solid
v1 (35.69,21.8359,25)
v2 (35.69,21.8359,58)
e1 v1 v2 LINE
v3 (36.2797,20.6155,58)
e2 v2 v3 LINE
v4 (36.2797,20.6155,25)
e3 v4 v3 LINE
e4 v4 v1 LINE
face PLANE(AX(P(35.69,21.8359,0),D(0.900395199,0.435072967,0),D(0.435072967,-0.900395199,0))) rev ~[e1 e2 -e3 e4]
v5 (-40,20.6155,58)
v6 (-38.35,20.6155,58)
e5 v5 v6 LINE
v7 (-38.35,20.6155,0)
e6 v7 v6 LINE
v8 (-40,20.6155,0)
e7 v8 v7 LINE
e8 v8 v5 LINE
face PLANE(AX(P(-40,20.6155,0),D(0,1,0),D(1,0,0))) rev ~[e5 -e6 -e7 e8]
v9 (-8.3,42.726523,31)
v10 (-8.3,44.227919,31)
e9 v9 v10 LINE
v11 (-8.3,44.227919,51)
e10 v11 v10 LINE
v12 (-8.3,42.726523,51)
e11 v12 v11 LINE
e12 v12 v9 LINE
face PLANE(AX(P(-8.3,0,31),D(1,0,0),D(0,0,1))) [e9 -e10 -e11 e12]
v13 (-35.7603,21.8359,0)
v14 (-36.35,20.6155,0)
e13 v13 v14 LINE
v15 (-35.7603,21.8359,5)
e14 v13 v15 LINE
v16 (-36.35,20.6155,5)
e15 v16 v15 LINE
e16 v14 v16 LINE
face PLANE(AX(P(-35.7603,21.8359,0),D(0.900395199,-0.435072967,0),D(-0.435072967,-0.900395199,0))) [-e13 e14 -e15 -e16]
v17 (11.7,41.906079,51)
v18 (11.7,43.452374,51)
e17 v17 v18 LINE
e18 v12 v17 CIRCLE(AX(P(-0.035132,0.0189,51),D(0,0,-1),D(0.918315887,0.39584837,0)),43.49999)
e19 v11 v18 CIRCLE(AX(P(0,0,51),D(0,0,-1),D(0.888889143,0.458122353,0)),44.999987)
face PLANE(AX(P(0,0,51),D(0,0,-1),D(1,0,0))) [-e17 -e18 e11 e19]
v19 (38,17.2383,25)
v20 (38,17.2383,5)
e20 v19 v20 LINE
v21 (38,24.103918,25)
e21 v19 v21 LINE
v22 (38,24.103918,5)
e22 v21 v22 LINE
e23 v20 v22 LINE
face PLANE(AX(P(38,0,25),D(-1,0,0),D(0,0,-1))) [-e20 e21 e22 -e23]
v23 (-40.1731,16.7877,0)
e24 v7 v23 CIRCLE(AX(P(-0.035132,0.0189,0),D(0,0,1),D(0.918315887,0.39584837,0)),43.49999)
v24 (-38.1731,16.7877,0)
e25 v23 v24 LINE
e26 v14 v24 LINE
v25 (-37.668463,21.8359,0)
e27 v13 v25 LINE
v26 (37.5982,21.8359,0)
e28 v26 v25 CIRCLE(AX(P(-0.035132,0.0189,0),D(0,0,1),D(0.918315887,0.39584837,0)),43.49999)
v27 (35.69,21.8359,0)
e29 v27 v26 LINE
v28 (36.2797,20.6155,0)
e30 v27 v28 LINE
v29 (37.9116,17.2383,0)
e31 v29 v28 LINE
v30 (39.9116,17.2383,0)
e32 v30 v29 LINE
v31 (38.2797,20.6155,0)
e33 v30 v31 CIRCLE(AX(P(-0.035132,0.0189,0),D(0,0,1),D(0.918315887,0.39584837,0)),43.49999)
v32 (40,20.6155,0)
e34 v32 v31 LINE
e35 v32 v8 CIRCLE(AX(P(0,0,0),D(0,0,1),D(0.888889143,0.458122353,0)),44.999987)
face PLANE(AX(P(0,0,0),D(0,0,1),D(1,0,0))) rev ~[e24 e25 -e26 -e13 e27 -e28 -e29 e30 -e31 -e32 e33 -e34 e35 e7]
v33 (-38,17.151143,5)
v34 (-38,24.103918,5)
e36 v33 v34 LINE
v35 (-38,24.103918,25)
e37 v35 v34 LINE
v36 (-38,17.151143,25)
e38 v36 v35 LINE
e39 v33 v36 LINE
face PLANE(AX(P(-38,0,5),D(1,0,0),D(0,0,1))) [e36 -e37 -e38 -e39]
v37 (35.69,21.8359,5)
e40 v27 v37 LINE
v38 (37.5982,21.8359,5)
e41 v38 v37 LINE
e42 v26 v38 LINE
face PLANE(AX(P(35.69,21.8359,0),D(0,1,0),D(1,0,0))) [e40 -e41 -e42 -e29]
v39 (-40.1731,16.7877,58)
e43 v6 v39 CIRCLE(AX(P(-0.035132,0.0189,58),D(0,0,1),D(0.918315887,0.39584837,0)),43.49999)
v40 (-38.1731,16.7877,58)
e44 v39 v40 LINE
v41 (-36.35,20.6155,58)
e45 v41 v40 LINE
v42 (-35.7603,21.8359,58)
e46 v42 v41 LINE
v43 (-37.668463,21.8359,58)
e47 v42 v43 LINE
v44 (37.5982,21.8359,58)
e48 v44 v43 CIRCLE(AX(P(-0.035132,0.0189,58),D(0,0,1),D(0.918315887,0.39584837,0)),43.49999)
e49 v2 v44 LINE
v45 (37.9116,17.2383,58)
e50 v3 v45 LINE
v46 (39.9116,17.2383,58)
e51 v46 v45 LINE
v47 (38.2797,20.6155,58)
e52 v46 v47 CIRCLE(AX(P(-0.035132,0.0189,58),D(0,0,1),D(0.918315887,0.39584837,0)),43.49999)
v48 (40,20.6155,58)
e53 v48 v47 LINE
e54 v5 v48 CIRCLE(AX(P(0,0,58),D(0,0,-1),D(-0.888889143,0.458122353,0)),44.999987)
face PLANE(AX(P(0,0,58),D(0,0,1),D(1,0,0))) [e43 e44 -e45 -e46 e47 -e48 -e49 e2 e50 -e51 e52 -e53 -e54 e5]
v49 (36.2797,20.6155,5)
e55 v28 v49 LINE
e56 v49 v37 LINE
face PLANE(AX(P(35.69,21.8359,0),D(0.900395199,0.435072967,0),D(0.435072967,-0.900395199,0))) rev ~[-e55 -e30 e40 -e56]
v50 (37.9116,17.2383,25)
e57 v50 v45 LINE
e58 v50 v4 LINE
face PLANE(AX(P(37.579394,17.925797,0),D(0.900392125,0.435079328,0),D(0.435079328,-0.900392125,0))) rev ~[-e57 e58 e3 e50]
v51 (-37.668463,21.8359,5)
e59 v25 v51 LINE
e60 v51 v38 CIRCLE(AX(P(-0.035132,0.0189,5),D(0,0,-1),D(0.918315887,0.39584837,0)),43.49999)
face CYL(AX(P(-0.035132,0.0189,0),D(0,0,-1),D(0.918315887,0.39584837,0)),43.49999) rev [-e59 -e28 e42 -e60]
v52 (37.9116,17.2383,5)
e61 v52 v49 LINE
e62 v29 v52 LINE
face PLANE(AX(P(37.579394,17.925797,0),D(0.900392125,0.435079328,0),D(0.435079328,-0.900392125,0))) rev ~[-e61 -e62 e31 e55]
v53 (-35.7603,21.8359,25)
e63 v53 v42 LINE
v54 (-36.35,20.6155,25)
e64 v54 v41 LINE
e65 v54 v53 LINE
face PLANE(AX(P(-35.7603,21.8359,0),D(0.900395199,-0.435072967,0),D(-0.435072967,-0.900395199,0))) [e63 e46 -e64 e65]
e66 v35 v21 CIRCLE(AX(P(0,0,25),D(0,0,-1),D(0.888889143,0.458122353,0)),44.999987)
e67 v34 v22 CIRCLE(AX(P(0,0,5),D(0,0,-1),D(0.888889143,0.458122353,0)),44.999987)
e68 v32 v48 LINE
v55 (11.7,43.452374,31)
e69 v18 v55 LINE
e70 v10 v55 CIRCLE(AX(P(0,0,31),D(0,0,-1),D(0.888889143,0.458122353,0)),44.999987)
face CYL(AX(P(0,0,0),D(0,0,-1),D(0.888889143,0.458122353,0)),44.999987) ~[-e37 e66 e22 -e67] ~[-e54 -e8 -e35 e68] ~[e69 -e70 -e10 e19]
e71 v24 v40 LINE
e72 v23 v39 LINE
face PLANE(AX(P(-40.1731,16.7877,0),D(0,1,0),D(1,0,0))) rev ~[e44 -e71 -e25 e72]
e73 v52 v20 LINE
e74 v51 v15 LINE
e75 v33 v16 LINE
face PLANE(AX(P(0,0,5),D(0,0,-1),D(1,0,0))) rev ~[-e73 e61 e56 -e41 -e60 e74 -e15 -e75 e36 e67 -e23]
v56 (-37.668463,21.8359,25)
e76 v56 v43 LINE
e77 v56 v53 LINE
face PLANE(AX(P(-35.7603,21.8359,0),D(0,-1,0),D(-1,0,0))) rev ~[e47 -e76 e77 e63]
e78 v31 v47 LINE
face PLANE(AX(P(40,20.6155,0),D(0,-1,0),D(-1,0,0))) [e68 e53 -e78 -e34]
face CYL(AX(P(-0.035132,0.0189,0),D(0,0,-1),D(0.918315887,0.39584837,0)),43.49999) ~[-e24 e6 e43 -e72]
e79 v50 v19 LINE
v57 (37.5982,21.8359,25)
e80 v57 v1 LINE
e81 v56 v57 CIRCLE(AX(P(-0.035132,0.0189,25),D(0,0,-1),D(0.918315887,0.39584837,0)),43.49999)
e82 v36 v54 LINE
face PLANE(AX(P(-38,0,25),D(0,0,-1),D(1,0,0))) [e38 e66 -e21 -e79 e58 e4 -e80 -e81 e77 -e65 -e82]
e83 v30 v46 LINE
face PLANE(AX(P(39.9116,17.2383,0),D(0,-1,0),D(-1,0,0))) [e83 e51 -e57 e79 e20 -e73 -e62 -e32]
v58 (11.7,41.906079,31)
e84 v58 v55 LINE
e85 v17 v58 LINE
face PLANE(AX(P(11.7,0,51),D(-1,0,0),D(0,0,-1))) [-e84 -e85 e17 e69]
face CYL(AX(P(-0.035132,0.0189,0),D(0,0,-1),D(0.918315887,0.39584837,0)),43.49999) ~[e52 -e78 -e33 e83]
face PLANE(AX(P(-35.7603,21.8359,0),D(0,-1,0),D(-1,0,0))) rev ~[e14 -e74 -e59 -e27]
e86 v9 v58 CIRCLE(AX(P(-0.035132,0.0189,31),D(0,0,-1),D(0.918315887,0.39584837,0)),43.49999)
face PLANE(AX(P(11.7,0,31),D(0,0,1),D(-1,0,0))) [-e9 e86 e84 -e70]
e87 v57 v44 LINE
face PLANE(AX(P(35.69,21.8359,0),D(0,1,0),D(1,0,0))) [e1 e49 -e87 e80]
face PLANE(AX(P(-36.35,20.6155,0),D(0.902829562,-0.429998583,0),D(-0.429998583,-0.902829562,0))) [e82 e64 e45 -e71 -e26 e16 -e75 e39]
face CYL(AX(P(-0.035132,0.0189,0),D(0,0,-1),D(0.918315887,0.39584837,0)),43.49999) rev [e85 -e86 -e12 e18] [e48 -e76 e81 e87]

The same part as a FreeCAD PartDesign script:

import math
import FreeCAD as App
import Part
import Sketcher
Q = App.Units.Quantity


def add_polygon(sketch, points):
    """Adds a closed chain of lines whose ends are joined by coincident constraints."""
    first, n = sketch.GeometryCount, len(points)
    for a, b in zip(points, points[1:] + points[:1]):
        sketch.addGeometry(Part.LineSegment(App.Vector(*a, 0), App.Vector(*b, 0)), False)
    for i in range(n):
        sketch.addConstraint(Sketcher.Constraint("Coincident", first + i, 2, first + (i + 1) % n, 1))

doc = App.newDocument("Part")
body = doc.addObject("PartDesign::Body", "Body")

# Sketch on XY plane
sketch1 = body.newObject("Sketcher::SketchObject", "Sketch")
sketch1.AttachmentSupport = (doc.getObject("XY_Plane"), [""])
sketch1.MapMode = "FlatFace"
sketch1.addGeometry([
    Part.LineSegment(App.Vector(38.2797, 20.6155, 0), App.Vector(40, 20.6155, 0)),  # 0
    Part.ArcOfCircle(Part.Circle(App.Vector(0, 0, 0), App.Vector(0, 0, 1), 44.999987), math.radians(27.266013), math.radians(152.733987)),  # 1
    Part.LineSegment(App.Vector(-40, 20.6155, 0), App.Vector(-38.35, 20.6155, 0)),  # 2
    Part.ArcOfCircle(Part.Circle(App.Vector(-0.0351, 0.0189, 0), App.Vector(0, 0, 1), 43.499961), math.radians(151.739254), math.radians(157.325869)),  # 3
    Part.LineSegment(App.Vector(-40.1731, 16.7877, 0), App.Vector(-38.1731, 16.7877, 0)),  # 4
    Part.LineSegment(App.Vector(-38.1731, 16.7877, 0), App.Vector(-36.35, 20.6155, 0)),  # 5
    Part.LineSegment(App.Vector(-36.35, 20.6155, 0), App.Vector(-35.7603, 21.8359, 0)),  # 6
    Part.LineSegment(App.Vector(-35.7603, 21.8359, 0), App.Vector(-37.668457, 21.8359, 0)),  # 7
    Part.ArcOfCircle(Part.Circle(App.Vector(-0.0351, 0.0189, 0), App.Vector(0, 0, 1), 43.499961), math.radians(30.101986), math.radians(149.898056)),  # 8
    Part.LineSegment(App.Vector(37.598194, 21.8359, 0), App.Vector(35.69, 21.8359, 0)),  # 9
    Part.LineSegment(App.Vector(35.69, 21.8359, 0), App.Vector(36.2797, 20.6155, 0)),  # 10
    Part.LineSegment(App.Vector(36.2797, 20.6155, 0), App.Vector(37.9116, 17.2383, 0)),  # 11
    Part.LineSegment(App.Vector(37.9116, 17.2383, 0), App.Vector(39.9116, 17.2383, 0)),  # 12
    Part.ArcOfCircle(Part.Circle(App.Vector(-0.0351, 0.0189, 0), App.Vector(0, 0, 1), 43.499961), math.radians(23.318912), math.radians(28.260808)),  # 13
], False)
sketch1.addConstraint([
    Sketcher.Constraint("Coincident", 0, 2, 1, 1),
    Sketcher.Constraint("Coincident", 1, 2, 2, 1),
    Sketcher.Constraint("Coincident", 2, 2, 3, 1),
    Sketcher.Constraint("Coincident", 3, 2, 4, 1),
    Sketcher.Constraint("Coincident", 4, 2, 5, 1),
    Sketcher.Constraint("Coincident", 5, 2, 6, 1),
    Sketcher.Constraint("Coincident", 6, 2, 7, 1),
    Sketcher.Constraint("Coincident", 7, 2, 8, 2),
    Sketcher.Constraint("Coincident", 8, 1, 9, 1),
    Sketcher.Constraint("Coincident", 9, 2, 10, 1),
    Sketcher.Constraint("Coincident", 10, 2, 11, 1),
    Sketcher.Constraint("Coincident", 11, 2, 12, 1),
    Sketcher.Constraint("Coincident", 12, 2, 13, 1),
    Sketcher.Constraint("Coincident", 13, 2, 0, 1),
    Sketcher.Constraint("Horizontal", 0),
    Sketcher.Constraint("Horizontal", 2),
    Sketcher.Constraint("Horizontal", 4),
    Sketcher.Constraint("Horizontal", 7),
    Sketcher.Constraint("Horizontal", 9),
    Sketcher.Constraint("Horizontal", 12),
    Sketcher.Constraint("Coincident", 1, 3, -1, 1),
    Sketcher.Constraint("Coincident", 8, 3, 3, 3),
    Sketcher.Constraint("Coincident", 13, 3, 3, 3),
    Sketcher.Constraint("Equal", 3, 8),
    Sketcher.Constraint("Equal", 8, 13),
    Sketcher.Constraint("Parallel", 10, 11),
    Sketcher.Constraint("Horizontal", 0, 2, 1, 2),
    Sketcher.Constraint("Horizontal", 2, 2, 5, 2),
    Sketcher.Constraint("Horizontal", 7, 2, 8, 1),
    Sketcher.Constraint("Horizontal", 5, 2, 10, 2),
    Sketcher.Constraint("Equal", 7, 9),
    Sketcher.Constraint("Equal", 4, 12),
    Sketcher.Constraint("Equal", 6, 10),
    Sketcher.Constraint("DistanceX", 4, 1, 4, 2, 2.0),
    Sketcher.Constraint("Radius", 1, 45.0),
    Sketcher.Constraint("DistanceX", 1, 2, 0, 2, 80.0),
    Sketcher.Constraint("DistanceX", 2, 2, 5, 2, 2.0),
    Sketcher.Constraint("Radius", 3, 43.5),
    Sketcher.Constraint("DistanceX", 2, 1, 2, 2, 1.65),
    Sketcher.Constraint("Angle", 6, Q("64.21 deg")),
    Sketcher.Constraint("DistanceX", -1, 1, 9, 2, 35.69),
    Sketcher.Constraint("DistanceX", 0, 1, 0, 2, 1.7203),
    Sketcher.Constraint("DistanceX", 3, 2, -1, 1, 40.173),
])
pad1 = body.newObject("PartDesign::Pad", "Pad")
pad1.Profile = sketch1
pad1.Length = 58

# Sketch on XZ plane
sketch2 = body.newObject("Sketcher::SketchObject", "Sketch001")
sketch2.AttachmentSupport = (doc.getObject("XZ_Plane"), [""])
sketch2.MapMode = "FlatFace"
add_polygon(sketch2, [(38, 5), (-38, 5), (-38, 25), (38, 25)])  # lines 0-3
add_polygon(sketch2, [(-8.3, 31), (-8.3, 51), (11.7, 51), (11.7, 31)])  # lines 4-7
sketch2.addConstraint([
    Sketcher.Constraint("Horizontal", 0),
    Sketcher.Constraint("Vertical", 1),
    Sketcher.Constraint("Horizontal", 2),
    Sketcher.Constraint("Vertical", 3),
    Sketcher.Constraint("Vertical", 4),
    Sketcher.Constraint("Horizontal", 5),
    Sketcher.Constraint("Vertical", 6),
    Sketcher.Constraint("Horizontal", 7),
    Sketcher.Constraint("Equal", 7, 1),
    Sketcher.Constraint("Equal", 3, 4),
    Sketcher.Constraint("DistanceX", 0, 2, 0, 1, 76.0),
    Sketcher.Constraint("DistanceX", 5, 1, 5, 2, 20.0),
    Sketcher.Constraint("DistanceX", 0, 2, -1, 1, 38.0),
    Sketcher.Constraint("DistanceY", -1, 1, 0, 2, 5.0),
    Sketcher.Constraint("DistanceY", -1, 1, 4, 2, 51.0),
    Sketcher.Constraint("DistanceX", 4, 2, -1, 1, 8.3),
])
pocket1 = body.newObject("PartDesign::Pocket", "Pocket")
pocket1.Profile = sketch2
pocket1.Length = 80

doc.recompute()
